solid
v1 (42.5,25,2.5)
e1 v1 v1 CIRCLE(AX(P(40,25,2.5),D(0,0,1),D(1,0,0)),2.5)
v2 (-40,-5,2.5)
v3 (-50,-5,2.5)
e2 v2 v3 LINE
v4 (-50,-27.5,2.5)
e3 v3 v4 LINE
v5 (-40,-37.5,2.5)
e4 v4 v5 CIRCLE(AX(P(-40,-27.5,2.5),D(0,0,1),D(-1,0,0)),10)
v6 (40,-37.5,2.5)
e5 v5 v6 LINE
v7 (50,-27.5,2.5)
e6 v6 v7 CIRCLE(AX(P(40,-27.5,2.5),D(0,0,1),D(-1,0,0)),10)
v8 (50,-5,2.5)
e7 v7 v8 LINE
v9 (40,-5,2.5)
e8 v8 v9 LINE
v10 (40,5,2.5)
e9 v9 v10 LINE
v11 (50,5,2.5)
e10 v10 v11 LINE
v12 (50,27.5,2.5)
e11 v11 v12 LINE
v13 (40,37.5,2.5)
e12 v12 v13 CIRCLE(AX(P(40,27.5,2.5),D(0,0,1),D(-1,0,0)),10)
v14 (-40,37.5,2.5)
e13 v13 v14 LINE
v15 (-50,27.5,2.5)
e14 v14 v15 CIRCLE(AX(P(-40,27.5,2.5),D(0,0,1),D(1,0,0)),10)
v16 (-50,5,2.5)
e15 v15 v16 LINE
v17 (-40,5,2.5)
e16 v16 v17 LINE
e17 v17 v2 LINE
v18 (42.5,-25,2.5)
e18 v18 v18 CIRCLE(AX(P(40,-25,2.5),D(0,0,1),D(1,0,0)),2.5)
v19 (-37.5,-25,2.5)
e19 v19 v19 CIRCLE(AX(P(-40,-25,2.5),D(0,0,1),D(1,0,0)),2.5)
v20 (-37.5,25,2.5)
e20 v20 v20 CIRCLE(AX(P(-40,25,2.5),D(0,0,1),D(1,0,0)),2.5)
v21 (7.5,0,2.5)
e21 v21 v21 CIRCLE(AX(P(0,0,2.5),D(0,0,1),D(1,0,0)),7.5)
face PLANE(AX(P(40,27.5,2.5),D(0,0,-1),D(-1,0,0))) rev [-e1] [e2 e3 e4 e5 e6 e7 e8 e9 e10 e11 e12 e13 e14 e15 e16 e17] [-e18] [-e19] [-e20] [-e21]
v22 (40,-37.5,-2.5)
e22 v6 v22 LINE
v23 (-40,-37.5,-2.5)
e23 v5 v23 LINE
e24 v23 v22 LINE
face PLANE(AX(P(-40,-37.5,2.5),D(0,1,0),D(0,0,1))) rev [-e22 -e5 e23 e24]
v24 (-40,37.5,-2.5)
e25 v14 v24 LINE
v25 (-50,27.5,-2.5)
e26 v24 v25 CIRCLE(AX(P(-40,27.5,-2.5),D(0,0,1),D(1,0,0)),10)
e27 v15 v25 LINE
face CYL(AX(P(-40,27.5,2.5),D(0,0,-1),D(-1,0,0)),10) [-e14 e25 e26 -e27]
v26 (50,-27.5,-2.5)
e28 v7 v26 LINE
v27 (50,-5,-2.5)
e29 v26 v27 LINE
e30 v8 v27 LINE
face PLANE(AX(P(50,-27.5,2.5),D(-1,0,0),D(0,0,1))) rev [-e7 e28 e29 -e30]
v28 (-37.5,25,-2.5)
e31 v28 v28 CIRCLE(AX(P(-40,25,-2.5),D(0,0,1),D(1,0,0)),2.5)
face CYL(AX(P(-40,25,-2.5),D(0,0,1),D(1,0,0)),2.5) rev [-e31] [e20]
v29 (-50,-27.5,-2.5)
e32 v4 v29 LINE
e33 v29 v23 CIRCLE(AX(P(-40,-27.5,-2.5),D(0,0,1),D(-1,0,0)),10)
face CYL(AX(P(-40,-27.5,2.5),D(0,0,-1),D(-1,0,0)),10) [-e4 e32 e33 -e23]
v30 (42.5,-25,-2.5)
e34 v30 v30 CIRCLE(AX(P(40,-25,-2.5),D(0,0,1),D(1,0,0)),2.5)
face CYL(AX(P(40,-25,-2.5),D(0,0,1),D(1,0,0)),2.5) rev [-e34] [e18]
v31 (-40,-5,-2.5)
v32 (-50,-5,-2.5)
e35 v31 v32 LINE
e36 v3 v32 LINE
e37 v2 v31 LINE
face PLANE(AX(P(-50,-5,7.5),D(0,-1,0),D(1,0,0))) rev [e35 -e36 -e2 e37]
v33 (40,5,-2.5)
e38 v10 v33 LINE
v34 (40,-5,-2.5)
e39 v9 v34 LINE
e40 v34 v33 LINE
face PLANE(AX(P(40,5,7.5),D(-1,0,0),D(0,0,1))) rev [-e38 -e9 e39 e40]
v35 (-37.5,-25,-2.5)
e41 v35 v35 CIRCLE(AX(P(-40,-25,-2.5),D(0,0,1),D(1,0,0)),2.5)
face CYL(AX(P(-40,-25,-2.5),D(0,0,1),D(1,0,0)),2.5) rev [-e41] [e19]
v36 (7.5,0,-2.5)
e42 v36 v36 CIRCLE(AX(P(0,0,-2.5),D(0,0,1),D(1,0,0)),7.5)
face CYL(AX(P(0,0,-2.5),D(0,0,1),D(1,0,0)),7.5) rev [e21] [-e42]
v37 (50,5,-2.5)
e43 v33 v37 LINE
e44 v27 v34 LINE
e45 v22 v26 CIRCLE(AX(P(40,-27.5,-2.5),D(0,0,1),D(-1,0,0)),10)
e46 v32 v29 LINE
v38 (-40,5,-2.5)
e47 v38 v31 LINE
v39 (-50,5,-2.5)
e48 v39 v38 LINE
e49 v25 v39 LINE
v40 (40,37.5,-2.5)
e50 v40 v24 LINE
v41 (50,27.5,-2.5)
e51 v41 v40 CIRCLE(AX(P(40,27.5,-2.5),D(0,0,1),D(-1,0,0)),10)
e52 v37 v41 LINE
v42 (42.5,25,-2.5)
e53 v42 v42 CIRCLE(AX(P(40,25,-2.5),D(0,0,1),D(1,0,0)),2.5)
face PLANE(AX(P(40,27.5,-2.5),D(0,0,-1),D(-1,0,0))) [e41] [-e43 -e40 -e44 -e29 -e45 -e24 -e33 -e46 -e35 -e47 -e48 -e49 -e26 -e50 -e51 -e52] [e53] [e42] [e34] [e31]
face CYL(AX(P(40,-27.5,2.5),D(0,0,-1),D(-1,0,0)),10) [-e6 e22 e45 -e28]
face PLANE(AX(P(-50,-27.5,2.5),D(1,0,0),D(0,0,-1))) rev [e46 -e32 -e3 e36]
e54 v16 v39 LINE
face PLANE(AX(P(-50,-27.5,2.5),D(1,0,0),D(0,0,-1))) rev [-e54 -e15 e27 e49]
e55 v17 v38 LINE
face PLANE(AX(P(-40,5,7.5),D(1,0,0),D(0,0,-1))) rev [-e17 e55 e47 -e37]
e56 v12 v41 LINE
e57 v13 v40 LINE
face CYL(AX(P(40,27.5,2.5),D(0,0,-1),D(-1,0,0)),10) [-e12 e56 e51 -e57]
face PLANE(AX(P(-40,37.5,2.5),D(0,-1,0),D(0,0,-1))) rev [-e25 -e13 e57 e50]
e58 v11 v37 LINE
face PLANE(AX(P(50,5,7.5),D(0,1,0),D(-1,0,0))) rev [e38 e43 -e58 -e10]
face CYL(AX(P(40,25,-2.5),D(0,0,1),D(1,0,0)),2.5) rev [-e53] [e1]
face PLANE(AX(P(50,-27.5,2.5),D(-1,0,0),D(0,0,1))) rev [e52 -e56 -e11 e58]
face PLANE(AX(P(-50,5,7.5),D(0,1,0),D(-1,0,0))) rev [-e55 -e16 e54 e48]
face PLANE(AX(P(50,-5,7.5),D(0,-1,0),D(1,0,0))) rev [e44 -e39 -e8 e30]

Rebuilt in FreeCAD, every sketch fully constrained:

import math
import FreeCAD as App
import Part
import Sketcher

V = App.Vector
Q = App.Units.Quantity


def add_polygon(sketch, points):
    """Adds a closed chain of lines whose ends are joined by coincident constraints."""
    first, n = sketch.GeometryCount, len(points)
    for a, b in zip(points, points[1:] + points[:1]):
        sketch.addGeometry(Part.LineSegment(App.Vector(*a, 0), App.Vector(*b, 0)), False)
    for i in range(n):
        sketch.addConstraint(Sketcher.Constraint("Coincident", first + i, 2, first + (i + 1) % n, 1))

doc = App.newDocument("Part")
body = doc.addObject("PartDesign::Body", "Body")

sketch1 = body.newObject("Sketcher::SketchObject", "Sketch")
sketch1.AttachmentSupport = (doc.getObject("XY_Plane"), [""])
sketch1.MapMode = "FlatFace"
sketch1.addGeometry([
    Part.LineSegment(V(-40, -37.5, 0), V(40, -37.5, 0)),
    Part.ArcOfCircle(Part.Circle(V(40, -27.5, 0), V(0, 0, 1), 10), math.radians(-90), math.radians(0)),
    Part.LineSegment(V(50, -27.5, 0), V(50, 27.5, 0)),
    Part.ArcOfCircle(Part.Circle(V(40, 27.5, 0), V(0, 0, 1), 10), math.radians(0), math.radians(90)),
    Part.LineSegment(V(40, 37.5, 0), V(-40, 37.5, 0)),
    Part.ArcOfCircle(Part.Circle(V(-40, 27.5, 0), V(0, 0, 1), 10), math.radians(90), math.radians(180)),
    Part.LineSegment(V(-50, 27.5, 0), V(-50, -27.5, 0)),
    Part.ArcOfCircle(Part.Circle(V(-40, -27.5, 0), V(0, 0, 1), 10), math.radians(180), math.radians(270)),
], False)
sketch1.addConstraint([
    Sketcher.Constraint("Tangent", 0, 2, 1, 1),
    Sketcher.Constraint("Tangent", 1, 2, 2, 1),
    Sketcher.Constraint("Tangent", 2, 2, 3, 1),
    Sketcher.Constraint("Tangent", 3, 2, 4, 1),
    Sketcher.Constraint("Tangent", 4, 2, 5, 1),
    Sketcher.Constraint("Tangent", 5, 2, 6, 1),
    Sketcher.Constraint("Tangent", 6, 2, 7, 1),
    Sketcher.Constraint("Tangent", 7, 2, 0, 1),
    Sketcher.Constraint("Horizontal", 0),
    Sketcher.Constraint("Vertical", 2),
    Sketcher.Constraint("Horizontal", 4),
    Sketcher.Constraint("Vertical", 6),
    Sketcher.Constraint("Equal", 1, 3),
    Sketcher.Constraint("Equal", 3, 5),
    Sketcher.Constraint("Equal", 5, 7),
    Sketcher.Constraint("Symmetric", 1, 3, 5, 3, -1, 1),
    Sketcher.Constraint("Radius", 1, Q("10 mm")),
    Sketcher.Constraint("DistanceX", 0, 1, 0, 2, Q("80 mm")),
    Sketcher.Constraint("DistanceY", 2, 1, 2, 2, Q("55 mm")),
])
pad1 = body.newObject("PartDesign::Pad", "Pad")
pad1.Profile = sketch1
pad1.Length = 5
pad1.Midplane = True

sketch2 = body.newObject("Sketcher::SketchObject", "Sketch001")
sketch2.AttachmentSupport = (doc.getObject("XY_Plane"), [""])
sketch2.MapMode = "FlatFace"
sketch2.AttachmentOffset = App.Placement(V(0, 0, 2.5), App.Rotation())
sketch2.addGeometry([
    Part.Circle(V(40, 25, 0), V(0, 0, 1), 2.5),
    Part.Circle(V(-40, 25, 0), V(0, 0, 1), 2.5),
    Part.Circle(V(-40, -25, 0), V(0, 0, 1), 2.5),
    Part.Circle(V(40, -25, 0), V(0, 0, 1), 2.5),
    Part.Circle(V(0, 0, 0), V(0, 0, 1), 7.5),
], False)
sketch2.addConstraint([
    Sketcher.Constraint("Coincident", 4, 3, -1, 1),
    Sketcher.Constraint("Equal", 0, 1),
    Sketcher.Constraint("Equal", 1, 2),
    Sketcher.Constraint("Equal", 2, 3),
    Sketcher.Constraint("Symmetric", 0, 3, 2, 3, -1, 1),
    Sketcher.Constraint("Symmetric", 1, 3, 3, 3, -1, 1),
    Sketcher.Constraint("Symmetric", 0, 3, 1, 3, -2),
    Sketcher.Constraint("Diameter", 0, Q("5 mm")),
    Sketcher.Constraint("Diameter", 4, Q("15 mm")),
    Sketcher.Constraint("DistanceX", -1, 1, 0, 3, Q("40 mm")),
    Sketcher.Constraint("DistanceY", -1, 1, 0, 3, Q("25 mm")),
])
pocket1 = body.newObject("PartDesign::Pocket", "Pocket")
pocket1.Profile = sketch2
pocket1.Type = "ThroughAll"

sketch3 = body.newObject("Sketcher::SketchObject", "Sketch002")
sketch3.AttachmentSupport = (doc.getObject("XY_Plane"), [""])
sketch3.MapMode = "FlatFace"
sketch3.AttachmentOffset = App.Placement(V(0, 0, -2.5), App.Rotation())
add_polygon(sketch3, [(-40, 5), (-40, -5), (-50, -5), (-50, 5)])
add_polygon(sketch3, [(50, 5), (50, -5), (40, -5), (40, 5)])
sketch3.addConstraint([
    Sketcher.Constraint("Vertical", 0),
    Sketcher.Constraint("Horizontal", 1),
    Sketcher.Constraint("Vertical", 2),
    Sketcher.Constraint("Horizontal", 3),
    Sketcher.Constraint("Vertical", 4),
    Sketcher.Constraint("Horizontal", 5),
    Sketcher.Constraint("Vertical", 6),
    Sketcher.Constraint("Horizontal", 7),
    Sketcher.Constraint("Symmetric", 2, 2, 4, 2, -1, 1),
    Sketcher.Constraint("Symmetric", 0, 2, 6, 2, -1, 1),
    Sketcher.Constraint("Horizontal", 1, 2, 4, 2),
    Sketcher.Constraint("Equal", 7, 0),
    Sketcher.Constraint("DistanceX", 1, 2, 1, 1, Q("10 mm")),
    Sketcher.Constraint("DistanceX", 0, 2, -1, 1, Q("40 mm")),
])
pocket2 = body.newObject("PartDesign::Pocket", "Pocket001")
pocket2.Profile = sketch3
pocket2.Length = 10
pocket2.Reversed = True

doc.recompute()
